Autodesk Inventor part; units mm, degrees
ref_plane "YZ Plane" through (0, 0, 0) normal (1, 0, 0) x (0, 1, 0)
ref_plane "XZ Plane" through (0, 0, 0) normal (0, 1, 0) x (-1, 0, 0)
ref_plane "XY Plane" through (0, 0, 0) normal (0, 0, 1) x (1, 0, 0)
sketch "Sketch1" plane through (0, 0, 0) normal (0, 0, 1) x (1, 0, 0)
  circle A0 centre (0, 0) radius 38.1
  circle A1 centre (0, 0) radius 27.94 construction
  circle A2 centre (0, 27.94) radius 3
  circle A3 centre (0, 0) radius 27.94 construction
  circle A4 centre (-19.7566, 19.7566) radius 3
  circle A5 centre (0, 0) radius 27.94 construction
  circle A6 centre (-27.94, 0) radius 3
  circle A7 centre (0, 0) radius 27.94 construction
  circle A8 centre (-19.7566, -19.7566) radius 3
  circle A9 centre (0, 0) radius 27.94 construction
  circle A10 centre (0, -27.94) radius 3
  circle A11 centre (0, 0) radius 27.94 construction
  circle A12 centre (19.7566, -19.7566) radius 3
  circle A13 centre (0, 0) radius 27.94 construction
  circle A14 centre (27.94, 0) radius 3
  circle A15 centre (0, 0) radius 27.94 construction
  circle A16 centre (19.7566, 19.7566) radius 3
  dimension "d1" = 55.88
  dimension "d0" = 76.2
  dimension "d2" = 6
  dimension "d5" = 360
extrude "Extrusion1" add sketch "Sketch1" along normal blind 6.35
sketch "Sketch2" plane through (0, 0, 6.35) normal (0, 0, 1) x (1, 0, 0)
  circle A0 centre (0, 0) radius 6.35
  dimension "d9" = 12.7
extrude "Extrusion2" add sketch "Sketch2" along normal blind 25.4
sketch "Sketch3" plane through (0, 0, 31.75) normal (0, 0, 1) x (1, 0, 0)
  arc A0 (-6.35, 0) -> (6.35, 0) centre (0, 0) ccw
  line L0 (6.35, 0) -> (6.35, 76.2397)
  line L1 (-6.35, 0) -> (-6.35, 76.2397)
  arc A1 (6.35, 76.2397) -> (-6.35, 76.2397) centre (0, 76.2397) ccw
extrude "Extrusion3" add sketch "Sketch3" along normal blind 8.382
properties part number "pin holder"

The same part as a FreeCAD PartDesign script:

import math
import FreeCAD as App
import Part
import Sketcher
from FreeCAD import Vector
Q = App.Units.Quantity

doc = App.newDocument("Part")
body = doc.addObject("PartDesign::Body", "Body")

# Sketch on XY plane
sketch1 = body.newObject("Sketcher::SketchObject", "Sketch")
sketch1.AttachmentSupport = (doc.getObject("XY_Plane"), [""])
sketch1.MapMode = "FlatFace"
sketch1.addGeometry(Part.Circle(Vector(0, 0, 0), Vector(0, 0, 1), 38.1), False)
sketch1.addGeometry(Part.Circle(Vector(-19.7566, -19.7566, 0), Vector(0, 0, 1), 3), False)
sketch1.addGeometry(Part.Circle(Vector(0, -27.94, 0), Vector(0, 0, 1), 3), False)
sketch1.addGeometry(Part.Circle(Vector(19.7566, -19.7566, 0), Vector(0, 0, 1), 3), False)
sketch1.addGeometry(Part.Circle(Vector(-27.94, 0, 0), Vector(0, 0, 1), 3), False)
sketch1.addGeometry(Part.Circle(Vector(-19.7566, 19.7566, 0), Vector(0, 0, 1), 3), False)
sketch1.addGeometry(Part.Circle(Vector(27.94, 0, 0), Vector(0, 0, 1), 3), False)
sketch1.addGeometry(Part.Circle(Vector(0, 27.94, 0), Vector(0, 0, 1), 3), False)
sketch1.addGeometry(Part.Circle(Vector(19.7566, 19.7566, 0), Vector(0, 0, 1), 3), False)
sketch1.addConstraint(Sketcher.Constraint("Coincident", 0, 3, -1, 1))
sketch1.addConstraint(Sketcher.Constraint("Equal", 1, 2))
sketch1.addConstraint(Sketcher.Constraint("Equal", 2, 3))
sketch1.addConstraint(Sketcher.Constraint("Equal", 3, 4))
sketch1.addConstraint(Sketcher.Constraint("Equal", 4, 5))
sketch1.addConstraint(Sketcher.Constraint("Equal", 5, 6))
sketch1.addConstraint(Sketcher.Constraint("Equal", 6, 7))
sketch1.addConstraint(Sketcher.Constraint("Equal", 7, 8))
sketch1.addConstraint(Sketcher.Constraint("Symmetric", 3, 3, 5, 3, -1, 1))
sketch1.addConstraint(Sketcher.Constraint("Symmetric", 4, 3, 6, 3, -1, 1))
sketch1.addConstraint(Sketcher.Constraint("Symmetric", 2, 3, 7, 3, -1, 1))
sketch1.addConstraint(Sketcher.Constraint("Symmetric", 1, 3, 8, 3, -1, 1))
sketch1.addConstraint(Sketcher.Constraint("Symmetric", 1, 3, 3, 3, -2))
sketch1.addConstraint(Sketcher.Constraint("PointOnObject", 2, 3, -2))
sketch1.addConstraint(Sketcher.Constraint("PointOnObject", 4, 3, -1))
sketch1.addConstraint(Sketcher.Constraint("Diameter", 0, Q("3 in")))
sketch1.addConstraint(Sketcher.Constraint("Diameter", 1, Q("6 mm")))
sketch1.addConstraint(Sketcher.Constraint("DistanceY", 2, 3, -1, 1, Q("1.1 in")))
sketch1.addConstraint(Sketcher.Constraint("DistanceX", 4, 3, -1, 1, Q("1.1 in")))
sketch1.addConstraint(Sketcher.Constraint("DistanceX", 1, 3, -1, 1, Q("19.7566 mm")))
sketch1.addConstraint(Sketcher.Constraint("DistanceY", 1, 3, -1, 1, Q("19.7566 mm")))
pad1 = body.newObject("PartDesign::Pad", "Pad")
pad1.Profile = sketch1
pad1.Length = Q("0.25 in")

# Sketch on XY plane
sketch2 = body.newObject("Sketcher::SketchObject", "Sketch001")
sketch2.AttachmentSupport = (doc.getObject("XY_Plane"), [""])
sketch2.MapMode = "FlatFace"
sketch2.AttachmentOffset = App.Placement(Vector(0, 0, 0.25 * 25.4), App.Rotation())
sketch2.addGeometry(Part.Circle(Vector(0, 0, 0), Vector(0, 0, 1), 6.35), False)
sketch2.addConstraint(Sketcher.Constraint("Coincident", 0, 3, -1, 1))
sketch2.addConstraint(Sketcher.Constraint("Diameter", 0, Q("0.5 in")))
pad2 = body.newObject("PartDesign::Pad", "Pad001")
pad2.Profile = sketch2
pad2.Length = Q("1 in")

# Sketch on XY plane
sketch3 = body.newObject("Sketcher::SketchObject", "Sketch002")
sketch3.AttachmentSupport = (doc.getObject("XY_Plane"), [""])
sketch3.MapMode = "FlatFace"
sketch3.AttachmentOffset = App.Placement(Vector(0, 0, 1.25 * 25.4), App.Rotation())
sketch3.addGeometry(Part.LineSegment(Vector(-6.35, 76.2397, 0), Vector(-6.35, 0, 0)), False)
sketch3.addGeometry(Part.ArcOfCircle(Part.Circle(Vector(0, 0, 0), Vector(0, 0, 1), 6.35), math.radians(180), math.radians(360)), False)
sketch3.addGeometry(Part.LineSegment(Vector(6.35, 0, 0), Vector(6.35, 76.2397, 0)), False)
sketch3.addGeometry(Part.ArcOfCircle(Part.Circle(Vector(0, 76.2397, 0), Vector(0, 0, 1), 6.35), math.radians(0), math.radians(180)), False)
sketch3.addConstraint(Sketcher.Constraint("Tangent", 0, 2, 1, 1))
sketch3.addConstraint(Sketcher.Constraint("Tangent", 1, 2, 2, 1))
sketch3.addConstraint(Sketcher.Constraint("Tangent", 2, 2, 3, 1))
sketch3.addConstraint(Sketcher.Constraint("Tangent", 3, 2, 0, 1))
sketch3.addConstraint(Sketcher.Constraint("Vertical", 0))
sketch3.addConstraint(Sketcher.Constraint("Vertical", 2))
sketch3.addConstraint(Sketcher.Constraint("Coincident", 1, 3, -1, 1))
sketch3.addConstraint(Sketcher.Constraint("Radius", 1, Q("0.25 in")))
sketch3.addConstraint(Sketcher.Constraint("DistanceY", 0, 2, 0, 1, Q("76.2397 mm")))
pad3 = body.newObject("PartDesign::Pad", "Pad002")
pad3.Profile = sketch3
pad3.Length = Q("0.33 in")

doc.recompute()
